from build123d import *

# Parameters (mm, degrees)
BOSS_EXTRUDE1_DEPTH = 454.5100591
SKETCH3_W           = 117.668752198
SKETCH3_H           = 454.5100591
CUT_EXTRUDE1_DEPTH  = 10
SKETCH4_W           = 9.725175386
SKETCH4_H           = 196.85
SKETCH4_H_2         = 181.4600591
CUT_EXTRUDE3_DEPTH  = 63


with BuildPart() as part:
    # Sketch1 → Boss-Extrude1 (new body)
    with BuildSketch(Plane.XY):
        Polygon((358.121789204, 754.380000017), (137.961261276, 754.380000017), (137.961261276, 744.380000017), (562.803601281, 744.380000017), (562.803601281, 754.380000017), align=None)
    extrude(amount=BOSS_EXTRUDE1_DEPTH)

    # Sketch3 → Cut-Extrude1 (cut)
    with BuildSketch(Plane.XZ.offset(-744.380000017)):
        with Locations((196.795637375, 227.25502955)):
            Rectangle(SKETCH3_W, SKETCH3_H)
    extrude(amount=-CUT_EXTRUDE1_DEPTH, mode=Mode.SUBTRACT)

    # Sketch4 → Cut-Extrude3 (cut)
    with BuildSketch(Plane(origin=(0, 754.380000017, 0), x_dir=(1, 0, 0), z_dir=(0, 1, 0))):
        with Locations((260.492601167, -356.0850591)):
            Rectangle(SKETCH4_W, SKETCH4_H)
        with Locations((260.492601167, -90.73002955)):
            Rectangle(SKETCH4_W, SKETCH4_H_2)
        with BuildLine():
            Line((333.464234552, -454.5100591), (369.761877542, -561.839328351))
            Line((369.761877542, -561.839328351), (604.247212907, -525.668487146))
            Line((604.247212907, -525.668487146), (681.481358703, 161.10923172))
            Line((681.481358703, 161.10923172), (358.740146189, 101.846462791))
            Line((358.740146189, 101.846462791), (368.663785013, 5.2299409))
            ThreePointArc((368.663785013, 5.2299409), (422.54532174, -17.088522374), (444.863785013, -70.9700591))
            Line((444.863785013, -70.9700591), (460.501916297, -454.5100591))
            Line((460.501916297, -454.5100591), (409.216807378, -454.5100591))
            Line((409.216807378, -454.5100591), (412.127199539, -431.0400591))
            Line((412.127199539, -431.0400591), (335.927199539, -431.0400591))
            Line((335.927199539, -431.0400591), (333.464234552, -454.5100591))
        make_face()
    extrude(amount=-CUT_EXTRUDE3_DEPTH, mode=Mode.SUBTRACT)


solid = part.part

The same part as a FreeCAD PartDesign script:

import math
import FreeCAD as App
import Part
import Sketcher

V = App.Vector
Q = App.Units.Quantity

doc = App.newDocument("Part")
body = doc.addObject("PartDesign::Body", "Body")

# Sketch on XY plane
sketch1 = body.newObject("Sketcher::SketchObject", "Sketch")
sketch1.AttachmentSupport = (doc.getObject("XY_Plane"), [""])
sketch1.MapMode = "FlatFace"
sketch1.addGeometry([
    Part.LineSegment(V(138, 754, 0), V(138, 744, 0)),
    Part.LineSegment(V(138, 744, 0), V(563, 744, 0)),
    Part.LineSegment(V(563, 744, 0), V(563, 754, 0)),
    Part.LineSegment(V(563, 754, 0), V(138, 754, 0)),
], False)
sketch1.addConstraint([
    Sketcher.Constraint("Coincident", 0, 2, 1, 1),
    Sketcher.Constraint("Coincident", 1, 2, 2, 1),
    Sketcher.Constraint("Coincident", 2, 2, 3, 1),
    Sketcher.Constraint("Coincident", 3, 2, 0, 1),
    Sketcher.Constraint("Vertical", 0),
    Sketcher.Constraint("Horizontal", 1),
    Sketcher.Constraint("Vertical", 2),
    Sketcher.Constraint("Horizontal", 3),
    Sketcher.Constraint("DistanceY", -1, 1, 2, 2, Q("29.7 in")),
    Sketcher.Constraint("DistanceY", 0, 2, 0, 1, 10.0),
    Sketcher.Constraint("DistanceX", 1, 1, 1, 2, 424.84234),
    Sketcher.Constraint("DistanceX", -1, 1, 1, 2, 562.803601),
])
pad1 = body.newObject("PartDesign::Pad", "Pad")
pad1.Profile = sketch1
pad1.Length = 454.510059

# Sketch on XZ plane
sketch2 = body.newObject("Sketcher::SketchObject", "Sketch001")
sketch2.AttachmentSupport = (doc.getObject("XZ_Plane"), [""])
sketch2.MapMode = "FlatFace"
sketch2.AttachmentOffset = App.Placement(V(0, 0, -744.38), App.Rotation())
sketch2.addGeometry([
    Part.LineSegment(V(138, 455, 0), V(138, 0, 0)),
    Part.LineSegment(V(138, 0, 0), V(256, 0, 0)),
    Part.LineSegment(V(256, 0, 0), V(256, 455, 0)),
    Part.LineSegment(V(256, 455, 0), V(138, 455, 0)),
], False)
sketch2.addConstraint([
    Sketcher.Constraint("Coincident", 0, 2, 1, 1),
    Sketcher.Constraint("Coincident", 1, 2, 2, 1),
    Sketcher.Constraint("Coincident", 2, 2, 3, 1),
    Sketcher.Constraint("Coincident", 3, 2, 0, 1),
    Sketcher.Constraint("Vertical", 0),
    Sketcher.Constraint("Horizontal", 1),
    Sketcher.Constraint("Vertical", 2),
    Sketcher.Constraint("Horizontal", 3),
    Sketcher.Constraint("PointOnObject", 0, 2, -1),
    Sketcher.Constraint("DistanceY", 0, 2, 0, 1, 454.510059),
    Sketcher.Constraint("DistanceX", 1, 1, 1, 2, 117.668752),
    Sketcher.Constraint("DistanceX", -1, 1, 0, 2, 137.961261),
])
pocket1 = body.newObject("PartDesign::Pocket", "Pocket")
pocket1.Profile = sketch2
pocket1.Length = 10

# Sketch on XZ plane
sketch3 = body.newObject("Sketcher::SketchObject", "Sketch002")
sketch3.AttachmentSupport = (doc.getObject("XZ_Plane"), [""])
sketch3.MapMode = "FlatFace"
sketch3.AttachmentOffset = App.Placement(V(0, 0, -29.7 * 25.4), App.Rotation())
sketch3.addGeometry([
    Part.LineSegment(V(256, 258, 0), V(256, 455, 0)),  # 0
    Part.LineSegment(V(256, 455, 0), V(265, 455, 0)),  # 1
    Part.LineSegment(V(265, 455, 0), V(265, 258, 0)),  # 2
    Part.LineSegment(V(265, 258, 0), V(256, 258, 0)),  # 3
    Part.LineSegment(V(256, 0, 0), V(256, 181, 0)),  # 4
    Part.LineSegment(V(256, 181, 0), V(265, 181, 0)),  # 5
    Part.LineSegment(V(265, 181, 0), V(265, 0, 0)),  # 6
    Part.LineSegment(V(265, 0, 0), V(256, 0, 0)),  # 7
    Part.LineSegment(V(333, 455, 0), V(370, 562, 0)),  # 8
    Part.LineSegment(V(370, 562, 0), V(604, 526, 0)),  # 9
    Part.LineSegment(V(604, 526, 0), V(681, -161, 0)),  # 10
    Part.LineSegment(V(681, -161, 0), V(359, -102, 0)),  # 11
    Part.LineSegment(V(359, -102, 0), V(369, -5, 0)),  # 12
    Part.ArcOfCircle(Part.Circle(V(369, 71, 0), V(0, 0, 1), 76), math.radians(-90), math.radians(0)),  # 13
    Part.LineSegment(V(445, 71, 0), V(461, 455, 0)),  # 14
    Part.LineSegment(V(461, 455, 0), V(409, 455, 0)),  # 15
    Part.LineSegment(V(409, 455, 0), V(412, 431, 0)),  # 16
    Part.LineSegment(V(412, 431, 0), V(336, 431, 0)),  # 17
    Part.LineSegment(V(336, 431, 0), V(333, 455, 0)),  # 18
], False)
sketch3.addConstraint([
    Sketcher.Constraint("Coincident", 0, 2, 1, 1),
    Sketcher.Constraint("Coincident", 1, 2, 2, 1),
    Sketcher.Constraint("Coincident", 2, 2, 3, 1),
    Sketcher.Constraint("Coincident", 3, 2, 0, 1),
    Sketcher.Constraint("Coincident", 4, 2, 5, 1),
    Sketcher.Constraint("Coincident", 5, 2, 6, 1),
    Sketcher.Constraint("Coincident", 6, 2, 7, 1),
    Sketcher.Constraint("Coincident", 7, 2, 4, 1),
    Sketcher.Constraint("Coincident", 8, 2, 9, 1),
    Sketcher.Constraint("Coincident", 9, 2, 10, 1),
    Sketcher.Constraint("Coincident", 10, 2, 11, 1),
    Sketcher.Constraint("Coincident", 11, 2, 12, 1),
    Sketcher.Constraint("Coincident", 12, 2, 13, 1),
    Sketcher.Constraint("Coincident", 13, 2, 14, 1),
    Sketcher.Constraint("Coincident", 14, 2, 15, 1),
    Sketcher.Constraint("Coincident", 15, 2, 16, 1),
    Sketcher.Constraint("Coincident", 16, 2, 17, 1),
    Sketcher.Constraint("Coincident", 17, 2, 18, 1),
    Sketcher.Constraint("Coincident", 18, 2, 8, 1),
    Sketcher.Constraint("Vertical", 0),
    Sketcher.Constraint("Horizontal", 1),
    Sketcher.Constraint("Vertical", 2),
    Sketcher.Constraint("Horizontal", 3),
    Sketcher.Constraint("Vertical", 4),
    Sketcher.Constraint("Horizontal", 5),
    Sketcher.Constraint("Vertical", 6),
    Sketcher.Constraint("Horizontal", 7),
    Sketcher.Constraint("Horizontal", 15),
    Sketcher.Constraint("Horizontal", 17),
    Sketcher.Constraint("PointOnObject", 6, 2, -1),
    Sketcher.Constraint("Horizontal", 1, 2, 14, 2),
    Sketcher.Constraint("Horizontal", 15, 2, 18, 2),
    Sketcher.Constraint("Vertical", 3, 2, 4, 2),
    Sketcher.Constraint("Vertical", 2, 2, 5, 2),
    Sketcher.Constraint("Vertical", 13, 3, 12, 2),
    Sketcher.Constraint("Radius", 13, Q("3 in")),
    Sketcher.Constraint("DistanceX", 17, 2, 17, 1, Q("3 in")),
    Sketcher.Constraint("DistanceY", 4, 2, 3, 2, Q("3 in")),
    Sketcher.Constraint("DistanceY", 12, 2, 13, 2, Q("3 in")),
    Sketcher.Constraint("DistanceY", 0, 1, 0, 2, Q("7.75 in")),
    Sketcher.Constraint("DistanceY", 13, 3, 0, 2, Q("15.1 in")),
    Sketcher.Constraint("DistanceY", 11, 2, 13, 3, Q("6.8038001 in")),
    Sketcher.Constraint("Distance", 10, 691.106901),
    Sketcher.Constraint("DistanceX", 15, 2, 15, 1, 51.285109),
    Sketcher.Constraint("DistanceY", 4, 1, 4, 2, 181.460059),
    Sketcher.Constraint("DistanceX", -1, 1, 16, 2, 412.1272),
    Sketcher.Constraint("DistanceX", 0, 2, 9, 2, 348.617199),
    Sketcher.Constraint("DistanceY", 16, 2, 15, 2, 23.47),
    Sketcher.Constraint("Distance", 12, 97.124821),
    Sketcher.Constraint("Distance", 18, 23.598879),
    Sketcher.Constraint("DistanceX", 1, 1, 1, 2, 9.725175),
    Sketcher.Constraint("DistanceX", -1, 1, 1, 2, 265.355189),
    Sketcher.Constraint("DistanceY", -1, 1, 8, 2, 561.839328),
    Sketcher.Constraint("DistanceX", -1, 1, 10, 2, 681.481359),
    Sketcher.Constraint("DistanceY", 10, 2, -1, 1, 161.109232),
    Sketcher.Constraint("DistanceX", 0, 2, 13, 3, 113.033772),
    Sketcher.Constraint("DistanceX", 1, 2, 8, 2, 104.406689),
    Sketcher.Constraint("DistanceX", 8, 2, 14, 2, 90.740039),
])
pocket2 = body.newObject("PartDesign::Pocket", "Pocket001")
pocket2.Profile = sketch3
pocket2.Length = 63
pocket2.Reversed = True

doc.recompute()
